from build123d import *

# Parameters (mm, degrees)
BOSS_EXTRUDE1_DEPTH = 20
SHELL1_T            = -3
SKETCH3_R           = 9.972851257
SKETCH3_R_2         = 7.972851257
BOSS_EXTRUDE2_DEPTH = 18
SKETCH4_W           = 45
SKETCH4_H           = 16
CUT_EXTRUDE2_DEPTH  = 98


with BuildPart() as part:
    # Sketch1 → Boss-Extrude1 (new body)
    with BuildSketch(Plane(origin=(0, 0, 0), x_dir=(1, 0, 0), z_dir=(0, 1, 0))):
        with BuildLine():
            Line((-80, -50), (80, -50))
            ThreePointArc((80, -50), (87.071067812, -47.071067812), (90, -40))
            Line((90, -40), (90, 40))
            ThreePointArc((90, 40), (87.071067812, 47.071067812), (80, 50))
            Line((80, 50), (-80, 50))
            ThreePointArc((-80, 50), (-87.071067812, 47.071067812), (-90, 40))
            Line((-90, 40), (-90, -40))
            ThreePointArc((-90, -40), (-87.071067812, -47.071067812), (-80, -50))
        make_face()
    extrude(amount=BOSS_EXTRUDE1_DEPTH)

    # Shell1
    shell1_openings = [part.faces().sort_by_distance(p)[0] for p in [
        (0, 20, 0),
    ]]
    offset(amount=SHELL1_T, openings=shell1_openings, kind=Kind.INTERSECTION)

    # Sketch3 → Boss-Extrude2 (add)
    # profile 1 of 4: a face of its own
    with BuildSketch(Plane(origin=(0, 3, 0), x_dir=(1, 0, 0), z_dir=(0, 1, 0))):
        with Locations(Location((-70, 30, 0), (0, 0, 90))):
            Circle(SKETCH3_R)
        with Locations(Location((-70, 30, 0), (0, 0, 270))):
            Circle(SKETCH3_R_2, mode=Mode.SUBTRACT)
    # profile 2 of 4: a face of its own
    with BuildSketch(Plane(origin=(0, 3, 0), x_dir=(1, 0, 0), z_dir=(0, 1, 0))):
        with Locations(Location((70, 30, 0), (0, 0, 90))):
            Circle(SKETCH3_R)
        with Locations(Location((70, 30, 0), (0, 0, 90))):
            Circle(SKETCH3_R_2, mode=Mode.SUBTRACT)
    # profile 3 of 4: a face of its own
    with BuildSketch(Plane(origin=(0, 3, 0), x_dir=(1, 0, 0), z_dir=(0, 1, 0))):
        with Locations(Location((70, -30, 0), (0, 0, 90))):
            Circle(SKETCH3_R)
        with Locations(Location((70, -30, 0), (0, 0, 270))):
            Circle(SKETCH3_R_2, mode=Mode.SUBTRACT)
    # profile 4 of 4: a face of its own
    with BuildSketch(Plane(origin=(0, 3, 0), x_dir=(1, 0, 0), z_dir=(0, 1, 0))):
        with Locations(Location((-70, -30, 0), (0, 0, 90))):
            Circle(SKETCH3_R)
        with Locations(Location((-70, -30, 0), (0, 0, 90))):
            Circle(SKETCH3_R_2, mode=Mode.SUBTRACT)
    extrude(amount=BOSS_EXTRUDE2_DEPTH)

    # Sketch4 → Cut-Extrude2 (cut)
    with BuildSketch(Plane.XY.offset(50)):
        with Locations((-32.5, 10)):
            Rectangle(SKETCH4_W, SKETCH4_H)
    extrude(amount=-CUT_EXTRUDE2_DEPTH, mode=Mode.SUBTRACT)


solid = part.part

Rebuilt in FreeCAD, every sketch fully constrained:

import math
import FreeCAD as App
import Part
import Sketcher

V = App.Vector
Q = App.Units.Quantity


def faces_at(feature, points):
    """Names of the faces that lie closest to the given points."""
    faces = feature.Shape.Faces
    near = lambda p: min(range(len(faces)), key=lambda i: faces[i].distToShape(Part.Vertex(*p))[0])
    return sorted({f"Face{near(p) + 1}" for p in points})

doc = App.newDocument("Part")
body = doc.addObject("PartDesign::Body", "Body")

# Sketch on XZ plane
sketch1 = body.newObject("Sketcher::SketchObject", "Sketch")
sketch1.AttachmentSupport = (doc.getObject("XZ_Plane"), [""])
sketch1.MapMode = "FlatFace"
sketch1.addGeometry([
    Part.LineSegment(V(-80, 50, 0), V(80, 50, 0)),  # 0
    Part.ArcOfCircle(Part.Circle(V(80, 40, 0), V(0, 0, 1), 10), math.radians(0), math.radians(90)),  # 1
    Part.LineSegment(V(90, 40, 0), V(90, -40, 0)),  # 2
    Part.ArcOfCircle(Part.Circle(V(80, -40, 0), V(0, 0, 1), 10), math.radians(-90), math.radians(0)),  # 3
    Part.LineSegment(V(80, -50, 0), V(-80, -50, 0)),  # 4
    Part.ArcOfCircle(Part.Circle(V(-80, -40, 0), V(0, 0, 1), 10), math.radians(180), math.radians(270)),  # 5
    Part.LineSegment(V(-90, -40, 0), V(-90, 40, 0)),  # 6
    Part.ArcOfCircle(Part.Circle(V(-80, 40, 0), V(0, 0, 1), 10), math.radians(90), math.radians(180)),  # 7
], False)
sketch1.addConstraint([
    Sketcher.Constraint("Tangent", 0, 2, 1, 2),
    Sketcher.Constraint("Tangent", 1, 1, 2, 1),
    Sketcher.Constraint("Tangent", 2, 2, 3, 2),
    Sketcher.Constraint("Tangent", 3, 1, 4, 1),
    Sketcher.Constraint("Tangent", 4, 2, 5, 2),
    Sketcher.Constraint("Tangent", 5, 1, 6, 1),
    Sketcher.Constraint("Tangent", 6, 2, 7, 2),
    Sketcher.Constraint("Tangent", 7, 1, 0, 1),
    Sketcher.Constraint("Horizontal", 0),
    Sketcher.Constraint("Vertical", 2),
    Sketcher.Constraint("Horizontal", 4),
    Sketcher.Constraint("Vertical", 6),
    Sketcher.Constraint("Equal", 1, 3),
    Sketcher.Constraint("Equal", 3, 5),
    Sketcher.Constraint("Equal", 5, 7),
    Sketcher.Constraint("Symmetric", 1, 3, 5, 3, -1, 1),
    Sketcher.Constraint("Radius", 1, Q("10 mm")),
    Sketcher.Constraint("DistanceX", 0, 1, 0, 2, Q("160 mm")),
    Sketcher.Constraint("DistanceY", 2, 2, 2, 1, Q("80 mm")),
])
pad1 = body.newObject("PartDesign::Pad", "Pad")
pad1.Profile = sketch1
pad1.Length = 20
pad1.Reversed = True
doc.recompute()

thickness = body.newObject("PartDesign::Thickness", "Thickness")
thickness.Base = (pad1, faces_at(pad1, [(0, 20, 0)]))
thickness.Value = 3
thickness.Reversed = True
thickness.Join = "Intersection"

# Sketch on XZ plane
sketch2 = body.newObject("Sketcher::SketchObject", "Sketch001")
sketch2.AttachmentSupport = (doc.getObject("XZ_Plane"), [""])
sketch2.MapMode = "FlatFace"
sketch2.AttachmentOffset = App.Placement(V(0, 0, -3), App.Rotation())
sketch2.addGeometry([
    Part.Circle(V(-70, -30, 0), V(0, 0, 1), 10),  # 0
    Part.Circle(V(-70, -30, 0), V(0, 0, 1), 8),  # 1
    Part.Circle(V(70, -30, 0), V(0, 0, 1), 10),  # 2
    Part.Circle(V(70, -30, 0), V(0, 0, 1), 8),  # 3
    Part.Circle(V(70, 30, 0), V(0, 0, 1), 10),  # 4
    Part.Circle(V(70, 30, 0), V(0, 0, 1), 8),  # 5
    Part.Circle(V(-70, 30, 0), V(0, 0, 1), 10),  # 6
    Part.Circle(V(-70, 30, 0), V(0, 0, 1), 8),  # 7
], False)
sketch2.addConstraint([
    Sketcher.Constraint("Coincident", 1, 3, 0, 3),
    Sketcher.Constraint("Coincident", 3, 3, 2, 3),
    Sketcher.Constraint("Coincident", 5, 3, 4, 3),
    Sketcher.Constraint("Coincident", 7, 3, 6, 3),
    Sketcher.Constraint("Equal", 0, 2),
    Sketcher.Constraint("Equal", 1, 3),
    Sketcher.Constraint("Equal", 2, 4),
    Sketcher.Constraint("Equal", 3, 5),
    Sketcher.Constraint("Equal", 4, 6),
    Sketcher.Constraint("Equal", 5, 7),
    Sketcher.Constraint("Symmetric", 0, 3, 4, 3, -1, 1),
    Sketcher.Constraint("Symmetric", 2, 3, 6, 3, -1, 1),
    Sketcher.Constraint("Symmetric", 0, 3, 2, 3, -2),
    Sketcher.Constraint("DistanceX", 0, 3, -1, 1, Q("70 mm")),
    Sketcher.Constraint("DistanceY", 0, 3, -1, 1, Q("30 mm")),
    Sketcher.Constraint("Diameter", 0, Q("19.945703 mm")),
    Sketcher.Constraint("Diameter", 1, Q("15.945703 mm")),
])
pad2 = body.newObject("PartDesign::Pad", "Pad001")
pad2.Profile = sketch2
pad2.Length = 18
pad2.Reversed = True

# Sketch on XY plane
sketch3 = body.newObject("Sketcher::SketchObject", "Sketch002")
sketch3.AttachmentSupport = (doc.getObject("XY_Plane"), [""])
sketch3.MapMode = "FlatFace"
sketch3.AttachmentOffset = App.Placement(V(0, 0, 50), App.Rotation())
sketch3.addGeometry([
    Part.LineSegment(V(-55, 18, 0), V(-55, 2, 0)),
    Part.LineSegment(V(-55, 2, 0), V(-10, 2, 0)),
    Part.LineSegment(V(-10, 2, 0), V(-10, 18, 0)),
    Part.LineSegment(V(-10, 18, 0), V(-55, 18, 0)),
], False)
sketch3.addConstraint([
    Sketcher.Constraint("Coincident", 0, 2, 1, 1),
    Sketcher.Constraint("Coincident", 1, 2, 2, 1),
    Sketcher.Constraint("Coincident", 2, 2, 3, 1),
    Sketcher.Constraint("Coincident", 3, 2, 0, 1),
    Sketcher.Constraint("Vertical", 0),
    Sketcher.Constraint("Horizontal", 1),
    Sketcher.Constraint("Vertical", 2),
    Sketcher.Constraint("Horizontal", 3),
    Sketcher.Constraint("DistanceX", 1, 1, 1, 2, Q("45 mm")),
    Sketcher.Constraint("DistanceY", 0, 2, 0, 1, Q("16 mm")),
    Sketcher.Constraint("DistanceX", 0, 2, -1, 1, Q("55 mm")),
    Sketcher.Constraint("DistanceY", -1, 1, 0, 2, Q("2 mm")),
])
pocket1 = body.newObject("PartDesign::Pocket", "Pocket")
pocket1.Profile = sketch3
pocket1.Length = 98

doc.recompute()
